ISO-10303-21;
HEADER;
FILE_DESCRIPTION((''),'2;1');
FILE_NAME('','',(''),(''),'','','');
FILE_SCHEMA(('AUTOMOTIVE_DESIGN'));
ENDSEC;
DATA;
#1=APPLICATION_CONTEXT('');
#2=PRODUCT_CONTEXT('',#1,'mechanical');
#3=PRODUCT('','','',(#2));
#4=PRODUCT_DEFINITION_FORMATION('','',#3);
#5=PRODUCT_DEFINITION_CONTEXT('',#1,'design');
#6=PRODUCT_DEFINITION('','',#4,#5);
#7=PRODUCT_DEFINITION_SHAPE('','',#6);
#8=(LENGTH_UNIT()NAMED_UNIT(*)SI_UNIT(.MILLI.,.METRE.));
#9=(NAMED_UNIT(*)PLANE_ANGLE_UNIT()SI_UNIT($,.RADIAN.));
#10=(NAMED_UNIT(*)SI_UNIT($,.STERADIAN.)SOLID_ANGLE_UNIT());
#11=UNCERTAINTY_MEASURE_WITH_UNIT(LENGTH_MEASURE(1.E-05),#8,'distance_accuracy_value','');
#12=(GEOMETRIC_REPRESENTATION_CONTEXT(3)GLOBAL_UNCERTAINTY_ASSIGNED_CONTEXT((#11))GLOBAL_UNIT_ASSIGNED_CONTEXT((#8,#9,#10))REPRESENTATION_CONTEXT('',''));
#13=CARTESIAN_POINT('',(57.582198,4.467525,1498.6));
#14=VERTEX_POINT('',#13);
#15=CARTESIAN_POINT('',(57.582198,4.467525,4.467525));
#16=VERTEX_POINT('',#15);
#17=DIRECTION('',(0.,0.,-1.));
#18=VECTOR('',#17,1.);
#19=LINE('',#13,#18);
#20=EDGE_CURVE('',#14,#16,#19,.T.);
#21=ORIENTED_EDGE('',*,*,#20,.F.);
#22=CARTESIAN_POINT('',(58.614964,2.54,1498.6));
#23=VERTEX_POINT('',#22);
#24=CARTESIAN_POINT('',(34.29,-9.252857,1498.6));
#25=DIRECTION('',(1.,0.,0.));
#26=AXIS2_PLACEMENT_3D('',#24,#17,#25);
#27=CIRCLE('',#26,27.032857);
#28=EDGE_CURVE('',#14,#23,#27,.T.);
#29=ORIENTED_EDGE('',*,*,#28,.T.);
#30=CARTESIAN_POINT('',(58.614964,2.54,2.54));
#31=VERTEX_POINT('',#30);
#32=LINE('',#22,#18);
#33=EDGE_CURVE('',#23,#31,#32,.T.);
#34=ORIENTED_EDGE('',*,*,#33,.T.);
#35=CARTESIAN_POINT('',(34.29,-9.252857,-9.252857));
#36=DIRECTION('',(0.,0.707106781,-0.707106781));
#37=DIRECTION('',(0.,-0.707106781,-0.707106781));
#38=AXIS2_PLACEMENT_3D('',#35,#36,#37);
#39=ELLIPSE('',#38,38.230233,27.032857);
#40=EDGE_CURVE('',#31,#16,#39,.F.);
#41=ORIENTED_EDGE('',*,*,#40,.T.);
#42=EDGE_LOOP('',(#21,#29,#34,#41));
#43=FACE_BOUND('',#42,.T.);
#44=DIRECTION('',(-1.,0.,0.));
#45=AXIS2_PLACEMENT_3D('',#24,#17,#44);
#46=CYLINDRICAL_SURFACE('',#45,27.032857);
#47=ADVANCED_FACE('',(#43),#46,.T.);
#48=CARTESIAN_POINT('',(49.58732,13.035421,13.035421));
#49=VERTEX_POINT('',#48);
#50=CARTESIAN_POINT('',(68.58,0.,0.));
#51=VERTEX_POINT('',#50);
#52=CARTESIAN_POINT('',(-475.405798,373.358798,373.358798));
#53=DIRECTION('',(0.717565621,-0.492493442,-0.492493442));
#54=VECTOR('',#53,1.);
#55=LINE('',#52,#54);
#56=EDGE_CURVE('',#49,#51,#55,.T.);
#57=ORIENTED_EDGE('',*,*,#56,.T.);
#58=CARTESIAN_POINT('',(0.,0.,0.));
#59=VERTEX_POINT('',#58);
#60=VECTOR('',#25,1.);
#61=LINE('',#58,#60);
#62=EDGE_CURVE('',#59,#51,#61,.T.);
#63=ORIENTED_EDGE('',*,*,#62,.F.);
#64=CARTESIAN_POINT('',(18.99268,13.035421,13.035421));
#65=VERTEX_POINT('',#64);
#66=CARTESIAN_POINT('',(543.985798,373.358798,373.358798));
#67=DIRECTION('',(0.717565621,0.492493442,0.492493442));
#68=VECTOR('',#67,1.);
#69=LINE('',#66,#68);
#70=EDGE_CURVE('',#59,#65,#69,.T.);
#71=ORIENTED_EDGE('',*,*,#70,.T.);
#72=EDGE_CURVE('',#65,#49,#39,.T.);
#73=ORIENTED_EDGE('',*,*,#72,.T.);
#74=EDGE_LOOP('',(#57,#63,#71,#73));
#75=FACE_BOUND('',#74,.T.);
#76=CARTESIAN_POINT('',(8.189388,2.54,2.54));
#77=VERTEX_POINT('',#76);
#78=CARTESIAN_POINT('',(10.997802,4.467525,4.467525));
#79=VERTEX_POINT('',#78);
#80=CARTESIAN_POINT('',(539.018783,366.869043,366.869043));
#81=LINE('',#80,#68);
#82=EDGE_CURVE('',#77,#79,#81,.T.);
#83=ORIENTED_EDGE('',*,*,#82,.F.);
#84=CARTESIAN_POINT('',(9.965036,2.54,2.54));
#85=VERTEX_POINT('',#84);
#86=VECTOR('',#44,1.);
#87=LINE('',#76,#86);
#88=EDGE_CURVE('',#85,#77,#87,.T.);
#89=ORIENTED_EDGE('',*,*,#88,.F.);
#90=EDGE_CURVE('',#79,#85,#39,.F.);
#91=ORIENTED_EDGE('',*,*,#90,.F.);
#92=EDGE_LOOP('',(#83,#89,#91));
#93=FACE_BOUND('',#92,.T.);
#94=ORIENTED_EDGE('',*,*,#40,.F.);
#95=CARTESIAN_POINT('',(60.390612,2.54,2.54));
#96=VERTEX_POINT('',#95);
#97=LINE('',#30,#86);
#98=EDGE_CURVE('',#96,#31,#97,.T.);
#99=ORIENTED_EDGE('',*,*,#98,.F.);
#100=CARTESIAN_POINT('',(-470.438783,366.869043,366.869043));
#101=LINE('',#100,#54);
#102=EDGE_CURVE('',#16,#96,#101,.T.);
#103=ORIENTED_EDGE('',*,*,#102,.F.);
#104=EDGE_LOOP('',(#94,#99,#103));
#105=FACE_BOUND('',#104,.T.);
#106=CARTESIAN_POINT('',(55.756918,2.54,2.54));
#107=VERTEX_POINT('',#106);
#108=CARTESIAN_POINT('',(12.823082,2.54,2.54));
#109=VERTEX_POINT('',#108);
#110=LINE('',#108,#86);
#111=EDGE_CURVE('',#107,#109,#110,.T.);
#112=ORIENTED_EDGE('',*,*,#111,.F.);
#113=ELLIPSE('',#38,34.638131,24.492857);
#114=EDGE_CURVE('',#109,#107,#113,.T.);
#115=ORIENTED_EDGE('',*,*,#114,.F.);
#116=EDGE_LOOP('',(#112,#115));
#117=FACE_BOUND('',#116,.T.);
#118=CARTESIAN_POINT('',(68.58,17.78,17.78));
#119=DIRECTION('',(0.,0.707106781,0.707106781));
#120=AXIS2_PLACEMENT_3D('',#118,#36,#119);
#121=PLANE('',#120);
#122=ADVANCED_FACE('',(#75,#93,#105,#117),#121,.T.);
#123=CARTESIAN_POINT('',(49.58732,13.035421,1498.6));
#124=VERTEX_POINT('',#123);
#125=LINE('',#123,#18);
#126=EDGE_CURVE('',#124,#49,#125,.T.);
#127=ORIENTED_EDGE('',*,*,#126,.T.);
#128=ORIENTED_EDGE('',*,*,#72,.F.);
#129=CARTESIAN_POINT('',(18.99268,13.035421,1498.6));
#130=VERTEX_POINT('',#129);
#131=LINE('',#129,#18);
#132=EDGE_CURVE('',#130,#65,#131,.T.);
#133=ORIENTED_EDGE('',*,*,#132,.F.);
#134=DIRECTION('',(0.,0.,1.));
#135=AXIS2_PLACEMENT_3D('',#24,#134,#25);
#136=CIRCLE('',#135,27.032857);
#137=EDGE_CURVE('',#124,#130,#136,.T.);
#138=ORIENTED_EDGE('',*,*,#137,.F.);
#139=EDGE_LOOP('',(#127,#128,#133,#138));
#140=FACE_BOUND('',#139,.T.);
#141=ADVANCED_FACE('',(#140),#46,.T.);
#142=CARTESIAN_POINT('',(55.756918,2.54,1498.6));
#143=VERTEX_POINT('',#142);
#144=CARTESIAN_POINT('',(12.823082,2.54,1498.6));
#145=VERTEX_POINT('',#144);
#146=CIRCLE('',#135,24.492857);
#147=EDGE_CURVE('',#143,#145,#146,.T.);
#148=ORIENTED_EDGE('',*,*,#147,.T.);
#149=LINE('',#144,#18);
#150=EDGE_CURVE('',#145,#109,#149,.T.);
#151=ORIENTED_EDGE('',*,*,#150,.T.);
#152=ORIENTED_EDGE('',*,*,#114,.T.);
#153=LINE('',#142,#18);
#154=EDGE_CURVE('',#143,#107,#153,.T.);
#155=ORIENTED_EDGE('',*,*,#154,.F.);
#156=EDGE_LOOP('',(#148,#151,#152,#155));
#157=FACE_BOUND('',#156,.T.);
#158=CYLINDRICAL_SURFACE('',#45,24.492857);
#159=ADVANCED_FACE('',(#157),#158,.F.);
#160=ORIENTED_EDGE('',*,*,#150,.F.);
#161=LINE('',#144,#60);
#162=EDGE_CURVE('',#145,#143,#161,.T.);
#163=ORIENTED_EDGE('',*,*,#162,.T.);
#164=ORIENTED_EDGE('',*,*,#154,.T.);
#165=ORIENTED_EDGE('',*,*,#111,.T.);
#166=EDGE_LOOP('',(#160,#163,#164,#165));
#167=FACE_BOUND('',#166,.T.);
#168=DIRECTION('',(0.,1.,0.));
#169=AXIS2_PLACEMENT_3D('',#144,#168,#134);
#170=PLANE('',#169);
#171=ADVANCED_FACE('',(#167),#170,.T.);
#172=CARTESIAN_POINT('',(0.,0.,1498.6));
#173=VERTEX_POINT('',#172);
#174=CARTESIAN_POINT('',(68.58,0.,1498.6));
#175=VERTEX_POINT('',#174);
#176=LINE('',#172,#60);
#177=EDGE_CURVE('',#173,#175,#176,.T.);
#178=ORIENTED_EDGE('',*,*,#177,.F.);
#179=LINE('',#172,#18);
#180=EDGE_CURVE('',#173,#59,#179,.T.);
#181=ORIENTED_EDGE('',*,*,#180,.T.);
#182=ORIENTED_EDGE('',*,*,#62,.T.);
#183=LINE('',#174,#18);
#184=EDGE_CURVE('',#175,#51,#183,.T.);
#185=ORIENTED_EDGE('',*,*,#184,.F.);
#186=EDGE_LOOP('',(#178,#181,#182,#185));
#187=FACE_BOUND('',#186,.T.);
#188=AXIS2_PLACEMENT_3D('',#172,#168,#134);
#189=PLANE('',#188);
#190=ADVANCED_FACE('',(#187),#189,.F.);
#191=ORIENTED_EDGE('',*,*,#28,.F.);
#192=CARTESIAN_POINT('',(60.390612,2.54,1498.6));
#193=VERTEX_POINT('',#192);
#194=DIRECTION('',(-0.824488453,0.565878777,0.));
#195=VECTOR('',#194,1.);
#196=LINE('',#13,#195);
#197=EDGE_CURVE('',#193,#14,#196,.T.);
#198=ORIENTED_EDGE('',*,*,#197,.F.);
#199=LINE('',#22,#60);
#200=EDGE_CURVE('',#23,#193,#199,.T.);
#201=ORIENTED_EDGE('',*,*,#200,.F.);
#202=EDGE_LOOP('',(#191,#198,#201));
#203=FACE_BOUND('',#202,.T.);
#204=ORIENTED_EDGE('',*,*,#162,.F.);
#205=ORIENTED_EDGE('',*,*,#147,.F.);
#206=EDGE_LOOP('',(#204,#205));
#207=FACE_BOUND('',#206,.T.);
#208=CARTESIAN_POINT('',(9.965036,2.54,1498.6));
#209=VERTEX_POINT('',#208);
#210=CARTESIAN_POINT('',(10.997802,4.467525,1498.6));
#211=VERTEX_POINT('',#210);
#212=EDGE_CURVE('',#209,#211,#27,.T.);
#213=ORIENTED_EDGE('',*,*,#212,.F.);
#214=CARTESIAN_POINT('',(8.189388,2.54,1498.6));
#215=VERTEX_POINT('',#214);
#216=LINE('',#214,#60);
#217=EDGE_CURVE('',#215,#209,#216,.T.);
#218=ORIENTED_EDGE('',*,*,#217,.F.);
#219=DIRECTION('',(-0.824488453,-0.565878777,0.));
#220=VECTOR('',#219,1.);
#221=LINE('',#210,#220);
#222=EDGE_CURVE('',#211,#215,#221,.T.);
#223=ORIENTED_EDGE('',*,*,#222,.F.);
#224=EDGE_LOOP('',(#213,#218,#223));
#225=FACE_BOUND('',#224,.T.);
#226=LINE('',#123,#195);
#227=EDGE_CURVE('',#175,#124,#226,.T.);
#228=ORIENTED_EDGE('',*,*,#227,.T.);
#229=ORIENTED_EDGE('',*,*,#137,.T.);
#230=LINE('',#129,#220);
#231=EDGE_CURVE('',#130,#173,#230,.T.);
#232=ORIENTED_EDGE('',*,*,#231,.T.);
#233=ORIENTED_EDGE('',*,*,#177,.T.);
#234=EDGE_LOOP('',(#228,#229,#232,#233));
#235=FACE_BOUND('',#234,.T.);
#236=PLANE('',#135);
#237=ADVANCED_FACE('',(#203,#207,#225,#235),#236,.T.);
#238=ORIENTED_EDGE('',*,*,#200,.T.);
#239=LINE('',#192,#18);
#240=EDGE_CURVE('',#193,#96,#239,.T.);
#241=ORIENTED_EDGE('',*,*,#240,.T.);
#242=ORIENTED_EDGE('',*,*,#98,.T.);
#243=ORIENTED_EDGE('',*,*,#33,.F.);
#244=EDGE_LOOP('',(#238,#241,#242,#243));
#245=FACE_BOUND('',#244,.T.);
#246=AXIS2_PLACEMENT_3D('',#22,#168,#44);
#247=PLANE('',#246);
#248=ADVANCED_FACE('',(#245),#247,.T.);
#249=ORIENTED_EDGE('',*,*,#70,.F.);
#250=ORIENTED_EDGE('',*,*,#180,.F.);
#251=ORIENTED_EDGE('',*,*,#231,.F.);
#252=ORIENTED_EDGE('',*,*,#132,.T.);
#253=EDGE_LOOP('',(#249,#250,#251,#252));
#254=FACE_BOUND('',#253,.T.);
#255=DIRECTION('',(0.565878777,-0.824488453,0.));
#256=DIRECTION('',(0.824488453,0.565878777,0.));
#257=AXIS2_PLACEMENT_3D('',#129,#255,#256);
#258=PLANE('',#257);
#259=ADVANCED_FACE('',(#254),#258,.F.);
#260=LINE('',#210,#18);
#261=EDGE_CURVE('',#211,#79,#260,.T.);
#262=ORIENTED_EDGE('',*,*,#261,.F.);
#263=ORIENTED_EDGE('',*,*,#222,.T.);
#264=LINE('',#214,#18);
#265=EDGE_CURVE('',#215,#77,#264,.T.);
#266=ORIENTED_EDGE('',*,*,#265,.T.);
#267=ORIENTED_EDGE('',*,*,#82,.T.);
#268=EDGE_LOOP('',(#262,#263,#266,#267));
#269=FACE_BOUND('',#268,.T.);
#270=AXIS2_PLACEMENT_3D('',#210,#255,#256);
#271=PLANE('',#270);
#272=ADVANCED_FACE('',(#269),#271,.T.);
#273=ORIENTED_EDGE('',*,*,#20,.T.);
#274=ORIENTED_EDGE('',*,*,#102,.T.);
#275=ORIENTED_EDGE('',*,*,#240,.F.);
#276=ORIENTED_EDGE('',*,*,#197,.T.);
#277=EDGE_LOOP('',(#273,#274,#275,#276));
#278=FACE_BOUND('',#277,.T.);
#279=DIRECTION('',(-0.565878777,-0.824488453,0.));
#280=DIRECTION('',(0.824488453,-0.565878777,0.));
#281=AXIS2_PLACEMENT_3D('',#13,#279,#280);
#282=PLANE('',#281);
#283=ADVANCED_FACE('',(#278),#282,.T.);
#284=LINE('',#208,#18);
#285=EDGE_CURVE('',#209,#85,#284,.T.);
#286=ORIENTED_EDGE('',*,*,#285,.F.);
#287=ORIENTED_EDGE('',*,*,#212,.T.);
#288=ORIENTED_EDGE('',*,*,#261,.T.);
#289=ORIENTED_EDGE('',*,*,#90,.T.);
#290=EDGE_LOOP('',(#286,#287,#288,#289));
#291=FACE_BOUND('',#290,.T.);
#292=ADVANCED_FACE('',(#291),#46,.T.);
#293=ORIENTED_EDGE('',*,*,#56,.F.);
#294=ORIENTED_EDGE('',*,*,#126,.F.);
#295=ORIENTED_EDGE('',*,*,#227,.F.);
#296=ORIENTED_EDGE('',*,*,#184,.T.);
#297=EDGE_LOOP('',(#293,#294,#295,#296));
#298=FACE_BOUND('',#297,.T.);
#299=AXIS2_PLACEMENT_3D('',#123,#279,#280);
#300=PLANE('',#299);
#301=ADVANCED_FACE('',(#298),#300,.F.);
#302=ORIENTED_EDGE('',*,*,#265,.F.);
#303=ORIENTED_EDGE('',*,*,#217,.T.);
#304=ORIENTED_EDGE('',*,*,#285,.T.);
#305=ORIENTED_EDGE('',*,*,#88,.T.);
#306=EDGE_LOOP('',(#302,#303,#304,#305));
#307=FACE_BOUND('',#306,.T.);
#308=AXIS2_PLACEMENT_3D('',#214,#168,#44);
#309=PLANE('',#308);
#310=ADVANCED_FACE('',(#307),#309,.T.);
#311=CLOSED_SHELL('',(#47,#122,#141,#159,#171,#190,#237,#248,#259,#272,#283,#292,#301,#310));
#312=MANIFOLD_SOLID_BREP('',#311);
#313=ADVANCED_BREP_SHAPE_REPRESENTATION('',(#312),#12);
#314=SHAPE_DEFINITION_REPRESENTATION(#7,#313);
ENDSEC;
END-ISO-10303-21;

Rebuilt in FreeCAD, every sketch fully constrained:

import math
import FreeCAD as App
import Part
import Sketcher

V = App.Vector
Q = App.Units.Quantity

doc = App.newDocument("Part")
body = doc.addObject("PartDesign::Body", "Body")

sketch1 = body.newObject("Sketcher::SketchObject", "Sketch")
sketch1.AttachmentSupport = (doc.getObject("XY_Plane"), [""])
sketch1.MapMode = "FlatFace"
sketch1.addGeometry(Part.LineSegment(V(0, 0, 0), V(68.6, 0, 0)), False)
sketch1.addGeometry(Part.LineSegment(V(68.6, 0, 0), V(49.6, 13, 0)), False)
sketch1.addGeometry(Part.ArcOfCircle(Part.Circle(V(34.3, -9.3, 0), V(0, 0, 1), 27), math.radians(56), math.radians(124)), False)
sketch1.addGeometry(Part.LineSegment(V(19, 13, 0), V(0, 0, 0)), False)
sketch1.addGeometry(Part.LineSegment(V(8.2, 2.5, 0), V(11, 4.5, 0)), False)
sketch1.addGeometry(Part.ArcOfCircle(Part.Circle(V(34.3, -9.3, 0), V(0, 0, 1), 27), math.radians(149.5), math.radians(154.14)), False)
sketch1.addGeometry(Part.LineSegment(V(10, 2.5, 0), V(8.2, 2.5, 0)), False)
sketch1.addGeometry(Part.ArcOfCircle(Part.Circle(V(34.3, -9.3, 0), V(0, 0, 1), 27), math.radians(25.86), math.radians(30.5)), False)
sketch1.addGeometry(Part.LineSegment(V(57.6, 4.5, 0), V(60.4, 2.5, 0)), False)
sketch1.addGeometry(Part.LineSegment(V(60.4, 2.5, 0), V(58.6, 2.5, 0)), False)
sketch1.addGeometry(Part.LineSegment(V(55.8, 2.5, 0), V(12.8, 2.5, 0)), False)
sketch1.addGeometry(Part.ArcOfCircle(Part.Circle(V(34.3, -9.3, 0), V(0, 0, 1), 24.5), math.radians(29), math.radians(151)), False)
sketch1.addConstraint(Sketcher.Constraint("Coincident", 0, 2, 1, 1))
sketch1.addConstraint(Sketcher.Constraint("Tangent", 1, 2, 2, 1))
sketch1.addConstraint(Sketcher.Constraint("Tangent", 2, 2, 3, 1))
sketch1.addConstraint(Sketcher.Constraint("Coincident", 3, 2, 0, 1))
sketch1.addConstraint(Sketcher.Constraint("Coincident", 4, 2, 5, 1))
sketch1.addConstraint(Sketcher.Constraint("Coincident", 5, 2, 6, 1))
sketch1.addConstraint(Sketcher.Constraint("Coincident", 6, 2, 4, 1))
sketch1.addConstraint(Sketcher.Constraint("Coincident", 7, 2, 8, 1))
sketch1.addConstraint(Sketcher.Constraint("Coincident", 8, 2, 9, 1))
sketch1.addConstraint(Sketcher.Constraint("Coincident", 9, 2, 7, 1))
sketch1.addConstraint(Sketcher.Constraint("Coincident", 10, 1, 11, 1))
sketch1.addConstraint(Sketcher.Constraint("Coincident", 11, 2, 10, 2))
sketch1.addConstraint(Sketcher.Constraint("Horizontal", 0))
sketch1.addConstraint(Sketcher.Constraint("Horizontal", 6))
sketch1.addConstraint(Sketcher.Constraint("Horizontal", 9))
sketch1.addConstraint(Sketcher.Constraint("Horizontal", 10))
sketch1.addConstraint(Sketcher.Constraint("Coincident", 3, 2, -1, 1))
sketch1.addConstraint(Sketcher.Constraint("Coincident", 5, 3, 2, 3))
sketch1.addConstraint(Sketcher.Constraint("Coincident", 7, 3, 2, 3))
sketch1.addConstraint(Sketcher.Constraint("Coincident", 11, 3, 2, 3))
sketch1.addConstraint(Sketcher.Constraint("Equal", 2, 5))
sketch1.addConstraint(Sketcher.Constraint("Equal", 5, 7))
sketch1.addConstraint(Sketcher.Constraint("Parallel", 3, 4))
sketch1.addConstraint(Sketcher.Constraint("Parallel", 1, 8))
sketch1.addConstraint(Sketcher.Constraint("Horizontal", 1, 2, 2, 2))
sketch1.addConstraint(Sketcher.Constraint("Horizontal", 4, 2, 7, 2))
sketch1.addConstraint(Sketcher.Constraint("Horizontal", 6, 2, 8, 2))
sketch1.addConstraint(Sketcher.Constraint("Horizontal", 9, 2, 10, 1))
sketch1.addConstraint(Sketcher.Constraint("DistanceX", 0, 1, 0, 2, Q("2.7 in")))
sketch1.addConstraint(Sketcher.Constraint("DistanceY", -1, 1, 5, 2, Q("0.1 in")))
sketch1.addConstraint(Sketcher.Constraint("Radius", 2, Q("27.032857 mm")))
sketch1.addConstraint(Sketcher.Constraint("Radius", 11, Q("24.492857 mm")))
sketch1.addConstraint(Sketcher.Constraint("DistanceX", 6, 2, 6, 1, Q("1.775648 mm")))
sketch1.addConstraint(Sketcher.Constraint("Distance", 4, Q("3.406251 mm")))
pad1 = body.newObject("PartDesign::Pad", "Pad")
pad1.Profile = sketch1
pad1.Length = Q("59 in")

sketch2 = body.newObject("Sketcher::SketchObject", "Sketch001")
sketch2.AttachmentSupport = (doc.getObject("YZ_Plane"), [""])
sketch2.MapMode = "FlatFace"
sketch2.addGeometry(Part.LineSegment(V(18, 18, 0), V(0, 0, 0)), False)
sketch2.addGeometry(Part.LineSegment(V(0, 0, 0), V(18, 0, 0)), False)
sketch2.addGeometry(Part.LineSegment(V(18, 0, 0), V(18, 18, 0)), False)
sketch2.addConstraint(Sketcher.Constraint("Coincident", 0, 2, 1, 1))
sketch2.addConstraint(Sketcher.Constraint("Coincident", 1, 2, 2, 1))
sketch2.addConstraint(Sketcher.Constraint("Coincident", 2, 2, 0, 1))
sketch2.addConstraint(Sketcher.Constraint("Horizontal", 1))
sketch2.addConstraint(Sketcher.Constraint("Vertical", 2))
sketch2.addConstraint(Sketcher.Constraint("Coincident", 0, 2, -1, 1))
sketch2.addConstraint(Sketcher.Constraint("Equal", 1, 2))
sketch2.addConstraint(Sketcher.Constraint("DistanceX", 1, 1, 1, 2, Q("0.7 in")))
pocket1 = body.newObject("PartDesign::Pocket", "Pocket")
pocket1.Profile = sketch2
pocket1.Type = "ThroughAll"
pocket1.Reversed = True

doc.recompute()
